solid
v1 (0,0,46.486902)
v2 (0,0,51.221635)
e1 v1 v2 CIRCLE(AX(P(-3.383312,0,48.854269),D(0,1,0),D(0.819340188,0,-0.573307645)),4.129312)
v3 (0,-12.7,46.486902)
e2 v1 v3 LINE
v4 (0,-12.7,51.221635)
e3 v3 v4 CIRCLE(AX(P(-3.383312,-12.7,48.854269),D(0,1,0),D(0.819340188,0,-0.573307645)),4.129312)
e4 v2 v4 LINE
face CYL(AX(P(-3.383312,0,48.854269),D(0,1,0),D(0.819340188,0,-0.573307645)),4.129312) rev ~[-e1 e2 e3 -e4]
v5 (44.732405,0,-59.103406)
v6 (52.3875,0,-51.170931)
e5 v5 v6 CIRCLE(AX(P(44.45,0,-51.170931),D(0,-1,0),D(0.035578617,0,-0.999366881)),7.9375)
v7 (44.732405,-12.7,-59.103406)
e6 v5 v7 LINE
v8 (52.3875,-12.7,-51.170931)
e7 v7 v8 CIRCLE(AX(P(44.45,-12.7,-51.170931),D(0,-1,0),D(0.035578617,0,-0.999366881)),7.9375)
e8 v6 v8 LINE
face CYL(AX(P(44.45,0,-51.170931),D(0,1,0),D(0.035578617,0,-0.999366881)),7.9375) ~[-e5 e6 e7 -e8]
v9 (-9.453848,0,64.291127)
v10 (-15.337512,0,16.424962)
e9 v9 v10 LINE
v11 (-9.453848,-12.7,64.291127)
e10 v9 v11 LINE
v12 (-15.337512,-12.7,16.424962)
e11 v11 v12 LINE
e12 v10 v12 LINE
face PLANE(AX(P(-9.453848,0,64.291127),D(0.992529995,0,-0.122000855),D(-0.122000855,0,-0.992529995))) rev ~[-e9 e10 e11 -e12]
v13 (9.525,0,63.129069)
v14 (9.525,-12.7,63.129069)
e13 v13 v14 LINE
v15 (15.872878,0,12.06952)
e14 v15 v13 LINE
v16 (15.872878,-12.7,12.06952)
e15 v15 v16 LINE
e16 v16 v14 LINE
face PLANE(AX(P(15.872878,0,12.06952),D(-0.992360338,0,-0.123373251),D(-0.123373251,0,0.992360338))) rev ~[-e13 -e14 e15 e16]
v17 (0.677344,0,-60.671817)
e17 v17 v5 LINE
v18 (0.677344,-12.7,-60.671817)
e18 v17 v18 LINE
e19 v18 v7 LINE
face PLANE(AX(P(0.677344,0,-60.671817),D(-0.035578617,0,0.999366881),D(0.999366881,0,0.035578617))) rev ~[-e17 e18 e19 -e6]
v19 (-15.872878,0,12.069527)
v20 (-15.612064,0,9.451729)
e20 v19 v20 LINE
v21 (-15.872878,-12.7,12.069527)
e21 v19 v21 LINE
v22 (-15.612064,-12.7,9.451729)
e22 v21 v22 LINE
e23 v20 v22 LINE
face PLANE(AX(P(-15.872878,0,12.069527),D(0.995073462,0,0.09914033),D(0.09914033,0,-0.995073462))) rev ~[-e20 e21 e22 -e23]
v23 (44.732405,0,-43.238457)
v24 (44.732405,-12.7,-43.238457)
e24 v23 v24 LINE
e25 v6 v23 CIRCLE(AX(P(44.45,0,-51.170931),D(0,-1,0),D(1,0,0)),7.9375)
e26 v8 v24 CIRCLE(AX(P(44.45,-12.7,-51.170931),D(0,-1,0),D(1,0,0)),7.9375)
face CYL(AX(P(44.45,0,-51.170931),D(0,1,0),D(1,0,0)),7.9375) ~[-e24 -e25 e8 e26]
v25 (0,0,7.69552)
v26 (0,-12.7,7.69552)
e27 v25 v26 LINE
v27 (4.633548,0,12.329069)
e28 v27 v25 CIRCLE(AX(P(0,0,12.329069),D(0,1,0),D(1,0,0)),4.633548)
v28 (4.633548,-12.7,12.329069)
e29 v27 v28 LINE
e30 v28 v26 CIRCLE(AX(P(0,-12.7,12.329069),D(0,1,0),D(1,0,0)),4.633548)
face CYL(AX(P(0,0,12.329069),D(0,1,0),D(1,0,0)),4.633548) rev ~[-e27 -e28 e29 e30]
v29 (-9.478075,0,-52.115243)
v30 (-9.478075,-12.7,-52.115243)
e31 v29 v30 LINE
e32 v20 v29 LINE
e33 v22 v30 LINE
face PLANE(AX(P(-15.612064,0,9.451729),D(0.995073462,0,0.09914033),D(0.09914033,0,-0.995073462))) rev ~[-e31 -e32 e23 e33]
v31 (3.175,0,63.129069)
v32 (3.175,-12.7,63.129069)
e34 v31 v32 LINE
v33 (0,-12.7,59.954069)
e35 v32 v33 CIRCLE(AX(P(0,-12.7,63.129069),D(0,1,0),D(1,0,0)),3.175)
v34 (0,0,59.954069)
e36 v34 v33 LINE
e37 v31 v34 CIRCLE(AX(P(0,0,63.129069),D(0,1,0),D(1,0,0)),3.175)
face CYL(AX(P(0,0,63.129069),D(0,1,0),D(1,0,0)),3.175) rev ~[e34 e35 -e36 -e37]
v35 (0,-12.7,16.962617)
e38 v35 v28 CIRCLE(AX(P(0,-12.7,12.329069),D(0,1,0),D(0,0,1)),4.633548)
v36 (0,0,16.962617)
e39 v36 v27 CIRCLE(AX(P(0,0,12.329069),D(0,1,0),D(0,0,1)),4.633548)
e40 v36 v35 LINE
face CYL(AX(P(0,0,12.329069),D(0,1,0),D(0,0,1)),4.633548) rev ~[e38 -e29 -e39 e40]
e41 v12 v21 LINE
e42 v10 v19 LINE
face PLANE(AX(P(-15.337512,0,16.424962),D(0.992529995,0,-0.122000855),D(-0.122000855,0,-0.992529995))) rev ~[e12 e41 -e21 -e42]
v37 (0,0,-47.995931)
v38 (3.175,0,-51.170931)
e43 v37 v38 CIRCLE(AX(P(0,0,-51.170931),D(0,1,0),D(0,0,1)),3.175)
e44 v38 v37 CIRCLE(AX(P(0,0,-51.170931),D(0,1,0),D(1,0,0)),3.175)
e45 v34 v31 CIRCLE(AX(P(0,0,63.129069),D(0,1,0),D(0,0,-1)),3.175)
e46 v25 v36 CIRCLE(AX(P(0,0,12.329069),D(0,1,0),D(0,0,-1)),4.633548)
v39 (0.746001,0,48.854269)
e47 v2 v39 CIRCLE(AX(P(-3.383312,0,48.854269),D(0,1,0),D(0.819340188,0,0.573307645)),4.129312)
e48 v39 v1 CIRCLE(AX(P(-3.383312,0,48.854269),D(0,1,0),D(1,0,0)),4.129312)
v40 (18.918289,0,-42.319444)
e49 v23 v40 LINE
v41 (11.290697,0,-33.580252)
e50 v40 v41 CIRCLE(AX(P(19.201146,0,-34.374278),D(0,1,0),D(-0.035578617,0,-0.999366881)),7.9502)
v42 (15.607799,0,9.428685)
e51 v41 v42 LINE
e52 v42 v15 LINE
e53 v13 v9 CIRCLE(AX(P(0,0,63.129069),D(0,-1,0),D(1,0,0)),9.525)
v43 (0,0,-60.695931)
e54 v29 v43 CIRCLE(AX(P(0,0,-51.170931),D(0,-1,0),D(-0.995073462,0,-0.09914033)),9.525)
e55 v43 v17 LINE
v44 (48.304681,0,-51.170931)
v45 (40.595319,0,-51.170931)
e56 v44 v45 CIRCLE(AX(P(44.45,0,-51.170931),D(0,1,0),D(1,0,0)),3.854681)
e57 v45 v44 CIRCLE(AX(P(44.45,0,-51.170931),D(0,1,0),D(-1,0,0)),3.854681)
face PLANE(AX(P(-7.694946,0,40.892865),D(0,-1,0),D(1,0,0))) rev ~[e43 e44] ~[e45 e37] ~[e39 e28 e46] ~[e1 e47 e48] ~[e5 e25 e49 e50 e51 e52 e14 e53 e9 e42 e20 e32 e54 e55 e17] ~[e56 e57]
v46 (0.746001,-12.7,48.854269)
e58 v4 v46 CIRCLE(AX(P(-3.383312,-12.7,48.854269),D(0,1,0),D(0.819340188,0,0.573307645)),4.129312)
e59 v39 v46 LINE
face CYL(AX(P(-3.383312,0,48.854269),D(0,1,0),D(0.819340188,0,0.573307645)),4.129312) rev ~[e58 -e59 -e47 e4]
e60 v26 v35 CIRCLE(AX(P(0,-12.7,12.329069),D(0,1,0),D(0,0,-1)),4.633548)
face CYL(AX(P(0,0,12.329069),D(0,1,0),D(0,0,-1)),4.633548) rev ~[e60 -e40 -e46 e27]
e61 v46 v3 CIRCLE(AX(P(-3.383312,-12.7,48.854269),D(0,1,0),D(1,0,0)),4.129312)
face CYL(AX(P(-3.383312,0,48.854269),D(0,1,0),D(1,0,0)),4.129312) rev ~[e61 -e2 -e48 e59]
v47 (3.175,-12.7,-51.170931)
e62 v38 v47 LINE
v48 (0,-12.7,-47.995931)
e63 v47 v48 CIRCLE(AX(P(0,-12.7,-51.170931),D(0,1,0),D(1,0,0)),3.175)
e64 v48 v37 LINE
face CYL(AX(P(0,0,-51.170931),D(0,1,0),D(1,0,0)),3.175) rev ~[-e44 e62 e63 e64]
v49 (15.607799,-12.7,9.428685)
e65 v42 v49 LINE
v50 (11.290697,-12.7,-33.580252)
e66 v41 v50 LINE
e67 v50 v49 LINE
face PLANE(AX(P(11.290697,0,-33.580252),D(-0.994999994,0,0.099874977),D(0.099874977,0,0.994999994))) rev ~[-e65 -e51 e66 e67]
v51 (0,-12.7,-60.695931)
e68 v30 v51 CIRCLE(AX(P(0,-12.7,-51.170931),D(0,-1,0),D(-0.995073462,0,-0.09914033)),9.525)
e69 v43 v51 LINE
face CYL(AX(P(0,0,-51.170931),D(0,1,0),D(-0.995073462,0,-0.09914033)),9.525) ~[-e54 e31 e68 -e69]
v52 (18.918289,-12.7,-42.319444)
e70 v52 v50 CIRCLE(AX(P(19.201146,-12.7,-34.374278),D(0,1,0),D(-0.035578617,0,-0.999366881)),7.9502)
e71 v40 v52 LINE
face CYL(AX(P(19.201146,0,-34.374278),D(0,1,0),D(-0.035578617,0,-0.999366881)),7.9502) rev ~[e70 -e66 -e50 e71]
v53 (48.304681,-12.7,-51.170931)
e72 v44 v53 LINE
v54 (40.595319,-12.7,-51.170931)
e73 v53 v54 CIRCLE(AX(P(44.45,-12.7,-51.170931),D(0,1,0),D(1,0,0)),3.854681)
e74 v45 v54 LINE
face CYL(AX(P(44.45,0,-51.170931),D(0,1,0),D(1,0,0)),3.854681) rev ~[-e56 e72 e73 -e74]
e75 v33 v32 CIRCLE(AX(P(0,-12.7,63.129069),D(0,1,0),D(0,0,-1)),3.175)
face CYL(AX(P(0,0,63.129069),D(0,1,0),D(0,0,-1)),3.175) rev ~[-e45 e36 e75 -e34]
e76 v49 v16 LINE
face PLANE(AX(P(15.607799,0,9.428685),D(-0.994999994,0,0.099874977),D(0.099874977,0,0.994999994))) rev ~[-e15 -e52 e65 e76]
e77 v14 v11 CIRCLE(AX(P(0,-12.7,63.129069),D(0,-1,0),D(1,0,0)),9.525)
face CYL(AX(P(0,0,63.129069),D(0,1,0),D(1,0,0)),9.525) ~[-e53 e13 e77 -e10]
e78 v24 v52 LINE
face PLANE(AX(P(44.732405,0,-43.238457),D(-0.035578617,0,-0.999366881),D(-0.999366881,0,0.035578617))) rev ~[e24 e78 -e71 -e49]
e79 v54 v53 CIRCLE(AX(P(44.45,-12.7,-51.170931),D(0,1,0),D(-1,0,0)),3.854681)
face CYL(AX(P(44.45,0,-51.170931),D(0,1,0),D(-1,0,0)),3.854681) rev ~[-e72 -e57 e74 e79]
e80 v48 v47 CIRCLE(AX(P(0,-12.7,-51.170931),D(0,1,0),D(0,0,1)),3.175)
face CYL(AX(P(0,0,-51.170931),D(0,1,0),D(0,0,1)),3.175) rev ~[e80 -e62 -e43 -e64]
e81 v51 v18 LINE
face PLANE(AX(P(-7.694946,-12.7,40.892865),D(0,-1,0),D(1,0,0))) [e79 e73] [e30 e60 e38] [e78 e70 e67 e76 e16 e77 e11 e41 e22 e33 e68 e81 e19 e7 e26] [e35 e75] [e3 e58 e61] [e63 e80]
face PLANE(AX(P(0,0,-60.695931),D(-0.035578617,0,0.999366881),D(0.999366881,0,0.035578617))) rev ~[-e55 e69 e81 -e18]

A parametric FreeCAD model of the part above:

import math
import FreeCAD as App
import Part
import Sketcher
Q = App.Units.Quantity

doc = App.newDocument("Part")
body = doc.addObject("PartDesign::Body", "Body")

sketch1 = body.newObject("Sketcher::SketchObject", "Sketch")
sketch1.AttachmentSupport = (doc.getObject("XZ_Plane"), [""])
sketch1.MapMode = "FlatFace"
sketch1.addGeometry(Part.LineSegment(App.Vector(-9.453848, 64.291127, 0), App.Vector(-15.337512, 16.424962, 0)), False)
sketch1.addGeometry(Part.LineSegment(App.Vector(-15.337512, 16.424962, 0), App.Vector(-15.872878, 12.069527, 0)), False)
sketch1.addGeometry(Part.LineSegment(App.Vector(-15.872878, 12.069527, 0), App.Vector(-15.612064, 9.451729, 0)), False)
sketch1.addGeometry(Part.LineSegment(App.Vector(-15.612064, 9.451729, 0), App.Vector(-9.478075, -52.115243, 0)), False)
sketch1.addGeometry(Part.ArcOfCircle(Part.Circle(App.Vector(0, -51.170931, 0), App.Vector(0, 0, 1), 9.525), math.radians(-174.310331), math.radians(-90)), False)
sketch1.addGeometry(Part.LineSegment(App.Vector(0, -60.695931, 0), App.Vector(0.677344, -60.671817, 0)), False)
sketch1.addGeometry(Part.LineSegment(App.Vector(0.677344, -60.671817, 0), App.Vector(44.732405, -59.103406, 0)), False)
sketch1.addGeometry(Part.ArcOfCircle(Part.Circle(App.Vector(44.45, -51.170931, 0), App.Vector(0, 0, 1), 7.9375), math.radians(-87.961065), math.radians(0)), False)
sketch1.addGeometry(Part.ArcOfCircle(Part.Circle(App.Vector(44.45, -51.170931, 0), App.Vector(0, 0, 1), 7.9375), math.radians(0), math.radians(87.961065)), False)
sketch1.addGeometry(Part.LineSegment(App.Vector(44.732405, -43.238457, 0), App.Vector(18.918289, -42.319444, 0)), False)
sketch1.addGeometry(Part.ArcOfCircle(Part.Circle(App.Vector(19.201146, -34.374278, 0), App.Vector(0, 0, 1), 7.9502), math.radians(174.268029), math.radians(267.961065)), False)
sketch1.addGeometry(Part.LineSegment(App.Vector(11.290697, -33.580252, 0), App.Vector(15.607799, 9.428685, 0)), False)
sketch1.addGeometry(Part.LineSegment(App.Vector(15.607799, 9.428685, 0), App.Vector(15.872878, 12.06952, 0)), False)
sketch1.addGeometry(Part.LineSegment(App.Vector(15.872878, 12.06952, 0), App.Vector(9.525, 63.129069, 0)), False)
sketch1.addGeometry(Part.ArcOfCircle(Part.Circle(App.Vector(0, 63.129069, 0), App.Vector(0, 0, 1), 9.525), math.radians(0), math.radians(172.992408)), False)
sketch1.addGeometry(Part.ArcOfCircle(Part.Circle(App.Vector(0, -51.170931, 0), App.Vector(0, 0, 1), 3.175), math.radians(90), math.radians(360)), False)
sketch1.addGeometry(Part.ArcOfCircle(Part.Circle(App.Vector(0, -51.170931, 0), App.Vector(0, 0, 1), 3.175), math.radians(0), math.radians(90)), False)
sketch1.addGeometry(Part.ArcOfCircle(Part.Circle(App.Vector(44.45, -51.170931, 0), App.Vector(0, 0, 1), 3.854681), math.radians(0), math.radians(180)), False)
sketch1.addGeometry(Part.ArcOfCircle(Part.Circle(App.Vector(44.45, -51.170931, 0), App.Vector(0, 0, 1), 3.854681), math.radians(180), math.radians(360)), False)
sketch1.addGeometry(Part.ArcOfCircle(Part.Circle(App.Vector(0, 12.329069, 0), App.Vector(0, 0, 1), 4.633548), math.radians(0), math.radians(90)), False)
sketch1.addGeometry(Part.ArcOfCircle(Part.Circle(App.Vector(0, 12.329069, 0), App.Vector(0, 0, 1), 4.633548), math.radians(-90), math.radians(0)), False)
sketch1.addGeometry(Part.ArcOfCircle(Part.Circle(App.Vector(0, 12.329069, 0), App.Vector(0, 0, 1), 4.633548), math.radians(90), math.radians(270)), False)
sketch1.addGeometry(Part.ArcOfCircle(Part.Circle(App.Vector(-3.383312, 48.854269, 0), App.Vector(0, 0, 1), 4.129312), math.radians(34.981201), math.radians(325.018799)), False)
sketch1.addGeometry(Part.ArcOfCircle(Part.Circle(App.Vector(-3.383312, 48.854269, 0), App.Vector(0, 0, 1), 4.129312), math.radians(0), math.radians(34.981201)), False)
sketch1.addGeometry(Part.ArcOfCircle(Part.Circle(App.Vector(-3.383312, 48.854269, 0), App.Vector(0, 0, 1), 4.129312), math.radians(-34.981201), math.radians(0)), False)
sketch1.addGeometry(Part.ArcOfCircle(Part.Circle(App.Vector(0, 63.129069, 0), App.Vector(0, 0, 1), 3.175), math.radians(0), math.radians(270)), False)
sketch1.addGeometry(Part.ArcOfCircle(Part.Circle(App.Vector(0, 63.129069, 0), App.Vector(0, 0, 1), 3.175), math.radians(-90), math.radians(0)), False)
sketch1.addConstraint(Sketcher.Constraint("Coincident", 0, 2, 1, 1))
sketch1.addConstraint(Sketcher.Constraint("Coincident", 1, 2, 2, 1))
sketch1.addConstraint(Sketcher.Constraint("Coincident", 2, 2, 3, 1))
sketch1.addConstraint(Sketcher.Constraint("Tangent", 3, 2, 4, 1))
sketch1.addConstraint(Sketcher.Constraint("Coincident", 4, 2, 5, 1))
sketch1.addConstraint(Sketcher.Constraint("Coincident", 5, 2, 6, 1))
sketch1.addConstraint(Sketcher.Constraint("Tangent", 6, 2, 7, 1))
sketch1.addConstraint(Sketcher.Constraint("Tangent", 7, 2, 8, 1))
sketch1.addConstraint(Sketcher.Constraint("Tangent", 8, 2, 9, 1))
sketch1.addConstraint(Sketcher.Constraint("Tangent", 9, 2, 10, 2))
sketch1.addConstraint(Sketcher.Constraint("Tangent", 10, 1, 11, 1))
sketch1.addConstraint(Sketcher.Constraint("Coincident", 11, 2, 12, 1))
sketch1.addConstraint(Sketcher.Constraint("Coincident", 12, 2, 13, 1))
sketch1.addConstraint(Sketcher.Constraint("Coincident", 13, 2, 14, 1))
sketch1.addConstraint(Sketcher.Constraint("Tangent", 14, 2, 0, 1))
sketch1.addConstraint(Sketcher.Constraint("Tangent", 15, 1, 16, 2))
sketch1.addConstraint(Sketcher.Constraint("Coincident", 16, 1, 15, 2))
sketch1.addConstraint(Sketcher.Constraint("Tangent", 17, 1, 18, 2))
sketch1.addConstraint(Sketcher.Constraint("Coincident", 18, 1, 17, 2))
sketch1.addConstraint(Sketcher.Constraint("Tangent", 19, 1, 20, 2))
sketch1.addConstraint(Sketcher.Constraint("Tangent", 20, 1, 21, 2))
sketch1.addConstraint(Sketcher.Constraint("Tangent", 21, 1, 19, 2))
sketch1.addConstraint(Sketcher.Constraint("Tangent", 22, 1, 23, 2))
sketch1.addConstraint(Sketcher.Constraint("Tangent", 23, 1, 24, 2))
sketch1.addConstraint(Sketcher.Constraint("Tangent", 24, 1, 22, 2))
sketch1.addConstraint(Sketcher.Constraint("Tangent", 25, 1, 26, 2))
sketch1.addConstraint(Sketcher.Constraint("Coincident", 26, 1, 25, 2))
sketch1.addConstraint(Sketcher.Constraint("Coincident", 15, 3, 4, 3))
sketch1.addConstraint(Sketcher.Constraint("Coincident", 17, 3, 7, 3))
sketch1.addConstraint(Sketcher.Constraint("Coincident", 25, 3, 14, 3))
sketch1.addConstraint(Sketcher.Constraint("Equal", 7, 8))
sketch1.addConstraint(Sketcher.Constraint("Equal", 4, 14))
sketch1.addConstraint(Sketcher.Constraint("Equal", 16, 25))
sketch1.addConstraint(Sketcher.Constraint("Symmetric", 1, 2, 12, 2, -2))
sketch1.addConstraint(Sketcher.Constraint("PointOnObject", 4, 3, -2))
sketch1.addConstraint(Sketcher.Constraint("PointOnObject", 14, 3, -2))
sketch1.addConstraint(Sketcher.Constraint("PointOnObject", 19, 3, -2))
sketch1.addConstraint(Sketcher.Constraint("PointOnObject", 4, 2, -2))
sketch1.addConstraint(Sketcher.Constraint("PointOnObject", 15, 1, -2))
sketch1.addConstraint(Sketcher.Constraint("PointOnObject", 20, 1, -2))
sketch1.addConstraint(Sketcher.Constraint("PointOnObject", 21, 1, -2))
sketch1.addConstraint(Sketcher.Constraint("PointOnObject", 22, 1, -2))
sketch1.addConstraint(Sketcher.Constraint("PointOnObject", 24, 1, -2))
sketch1.addConstraint(Sketcher.Constraint("PointOnObject", 26, 1, -2))
sketch1.addConstraint(Sketcher.Constraint("Parallel", 0, 1))
sketch1.addConstraint(Sketcher.Constraint("Parallel", 2, 3))
sketch1.addConstraint(Sketcher.Constraint("Parallel", 5, 6))
sketch1.addConstraint(Sketcher.Constraint("Parallel", 11, 12))
sketch1.addConstraint(Sketcher.Constraint("Horizontal", 4, 3, 7, 3))
sketch1.addConstraint(Sketcher.Constraint("Horizontal", 18, 3, 7, 2))
sketch1.addConstraint(Sketcher.Constraint("Horizontal", 26, 3, 13, 2))
sketch1.addConstraint(Sketcher.Constraint("Horizontal", 7, 2, 16, 1))
sketch1.addConstraint(Sketcher.Constraint("Horizontal", 16, 1, 17, 1))
sketch1.addConstraint(Sketcher.Constraint("Horizontal", 17, 1, 18, 1))
sketch1.addConstraint(Sketcher.Constraint("Horizontal", 21, 3, 19, 1))
sketch1.addConstraint(Sketcher.Constraint("Horizontal", 24, 3, 23, 1))
sketch1.addConstraint(Sketcher.Constraint("Horizontal", 13, 2, 25, 1))
sketch1.addConstraint(Sketcher.Constraint("Vertical", 6, 2, 8, 2))
sketch1.addConstraint(Sketcher.Constraint("Radius", 4, Q("0.375 in")))
sketch1.addConstraint(Sketcher.Constraint("Radius", 7, Q("0.3125 in")))
sketch1.addConstraint(Sketcher.Constraint("Radius", 10, Q("0.313 in")))
sketch1.addConstraint(Sketcher.Constraint("Radius", 15, Q("0.125 in")))
sketch1.addConstraint(Sketcher.Constraint("DistanceY", 19, 3, 14, 3, Q("2 in")))
sketch1.addConstraint(Sketcher.Constraint("DistanceY", 4, 3, 14, 3, Q("4.5 in")))
sketch1.addConstraint(Sketcher.Constraint("DistanceX", -1, 1, 7, 3, Q("1.75 in")))
sketch1.addConstraint(Sketcher.Constraint("Radius", 17, 3.854681))
sketch1.addConstraint(Sketcher.Constraint("Radius", 19, 4.633548))
sketch1.addConstraint(Sketcher.Constraint("DistanceY", 22, 3, 14, 3, Q("0.562 in")))
sketch1.addConstraint(Sketcher.Constraint("DistanceY", -1, 1, 22, 1, Q("2.0165998 in")))
sketch1.addConstraint(Sketcher.Constraint("Radius", 22, 4.129312))
sketch1.addConstraint(Sketcher.Constraint("DistanceX", -1, 1, 11, 2, 15.607799))
sketch1.addConstraint(Sketcher.Constraint("DistanceX", -1, 1, 23, 1, 0.746001))
sketch1.addConstraint(Sketcher.Constraint("DistanceX", 0, 2, 23, 3, 11.9542))
sketch1.addConstraint(Sketcher.Constraint("Distance", 2, 2.630758))
sketch1.addConstraint(Sketcher.Constraint("Distance", 6, 44.082972))
sketch1.addConstraint(Sketcher.Constraint("Distance", 9, 25.83047))
sketch1.addConstraint(Sketcher.Constraint("Distance", 13, 51.452629))
sketch1.addConstraint(Sketcher.Constraint("DistanceX", 1, 2, -1, 1, 15.872878))
pad1 = body.newObject("PartDesign::Pad", "Pad")
pad1.Profile = sketch1
pad1.Length = Q("0.5 in")

sketch2 = body.newObject("Sketcher::SketchObject", "Sketch001")
sketch2.AttachmentSupport = (doc.getObject("XZ_Plane"), [""])
sketch2.MapMode = "FlatFace"
sketch2.addGeometry(Part.ArcOfCircle(Part.Circle(App.Vector(0, -51.170931, 0), App.Vector(0, 0, 1), 9.525), math.radians(0), math.radians(90)), False)
sketch2.addGeometry(Part.LineSegment(App.Vector(0, -41.645931, 0), App.Vector(0, -47.995931, 0)), False)
sketch2.addGeometry(Part.ArcOfCircle(Part.Circle(App.Vector(0, -51.170931, 0), App.Vector(0, 0, 1), 3.175), math.radians(0), math.radians(90)), False)
sketch2.addGeometry(Part.LineSegment(App.Vector(3.175, -51.170931, 0), App.Vector(9.525, -51.170931, 0)), False)
sketch2.addConstraint(Sketcher.Constraint("Coincident", 0, 2, 1, 1))
sketch2.addConstraint(Sketcher.Constraint("Coincident", 1, 2, 2, 2))
sketch2.addConstraint(Sketcher.Constraint("Coincident", 2, 1, 3, 1))
sketch2.addConstraint(Sketcher.Constraint("Coincident", 3, 2, 0, 1))
sketch2.addConstraint(Sketcher.Constraint("Vertical", 1))
sketch2.addConstraint(Sketcher.Constraint("Horizontal", 3))
sketch2.addConstraint(Sketcher.Constraint("Coincident", 2, 3, 0, 3))
sketch2.addConstraint(Sketcher.Constraint("PointOnObject", 0, 3, -2))
sketch2.addConstraint(Sketcher.Constraint("PointOnObject", 0, 2, -2))
sketch2.addConstraint(Sketcher.Constraint("Horizontal", 0, 3, 2, 1))
sketch2.addConstraint(Sketcher.Constraint("Radius", 0, Q("0.375 in")))
sketch2.addConstraint(Sketcher.Constraint("Radius", 2, Q("0.125 in")))
sketch2.addConstraint(Sketcher.Constraint("DistanceY", 0, 3, -1, 1, 51.170931))
pad2 = body.newObject("PartDesign::Pad", "Pad001")
pad2.Profile = sketch2
pad2.Length = Q("0.12 in")

doc.recompute()
